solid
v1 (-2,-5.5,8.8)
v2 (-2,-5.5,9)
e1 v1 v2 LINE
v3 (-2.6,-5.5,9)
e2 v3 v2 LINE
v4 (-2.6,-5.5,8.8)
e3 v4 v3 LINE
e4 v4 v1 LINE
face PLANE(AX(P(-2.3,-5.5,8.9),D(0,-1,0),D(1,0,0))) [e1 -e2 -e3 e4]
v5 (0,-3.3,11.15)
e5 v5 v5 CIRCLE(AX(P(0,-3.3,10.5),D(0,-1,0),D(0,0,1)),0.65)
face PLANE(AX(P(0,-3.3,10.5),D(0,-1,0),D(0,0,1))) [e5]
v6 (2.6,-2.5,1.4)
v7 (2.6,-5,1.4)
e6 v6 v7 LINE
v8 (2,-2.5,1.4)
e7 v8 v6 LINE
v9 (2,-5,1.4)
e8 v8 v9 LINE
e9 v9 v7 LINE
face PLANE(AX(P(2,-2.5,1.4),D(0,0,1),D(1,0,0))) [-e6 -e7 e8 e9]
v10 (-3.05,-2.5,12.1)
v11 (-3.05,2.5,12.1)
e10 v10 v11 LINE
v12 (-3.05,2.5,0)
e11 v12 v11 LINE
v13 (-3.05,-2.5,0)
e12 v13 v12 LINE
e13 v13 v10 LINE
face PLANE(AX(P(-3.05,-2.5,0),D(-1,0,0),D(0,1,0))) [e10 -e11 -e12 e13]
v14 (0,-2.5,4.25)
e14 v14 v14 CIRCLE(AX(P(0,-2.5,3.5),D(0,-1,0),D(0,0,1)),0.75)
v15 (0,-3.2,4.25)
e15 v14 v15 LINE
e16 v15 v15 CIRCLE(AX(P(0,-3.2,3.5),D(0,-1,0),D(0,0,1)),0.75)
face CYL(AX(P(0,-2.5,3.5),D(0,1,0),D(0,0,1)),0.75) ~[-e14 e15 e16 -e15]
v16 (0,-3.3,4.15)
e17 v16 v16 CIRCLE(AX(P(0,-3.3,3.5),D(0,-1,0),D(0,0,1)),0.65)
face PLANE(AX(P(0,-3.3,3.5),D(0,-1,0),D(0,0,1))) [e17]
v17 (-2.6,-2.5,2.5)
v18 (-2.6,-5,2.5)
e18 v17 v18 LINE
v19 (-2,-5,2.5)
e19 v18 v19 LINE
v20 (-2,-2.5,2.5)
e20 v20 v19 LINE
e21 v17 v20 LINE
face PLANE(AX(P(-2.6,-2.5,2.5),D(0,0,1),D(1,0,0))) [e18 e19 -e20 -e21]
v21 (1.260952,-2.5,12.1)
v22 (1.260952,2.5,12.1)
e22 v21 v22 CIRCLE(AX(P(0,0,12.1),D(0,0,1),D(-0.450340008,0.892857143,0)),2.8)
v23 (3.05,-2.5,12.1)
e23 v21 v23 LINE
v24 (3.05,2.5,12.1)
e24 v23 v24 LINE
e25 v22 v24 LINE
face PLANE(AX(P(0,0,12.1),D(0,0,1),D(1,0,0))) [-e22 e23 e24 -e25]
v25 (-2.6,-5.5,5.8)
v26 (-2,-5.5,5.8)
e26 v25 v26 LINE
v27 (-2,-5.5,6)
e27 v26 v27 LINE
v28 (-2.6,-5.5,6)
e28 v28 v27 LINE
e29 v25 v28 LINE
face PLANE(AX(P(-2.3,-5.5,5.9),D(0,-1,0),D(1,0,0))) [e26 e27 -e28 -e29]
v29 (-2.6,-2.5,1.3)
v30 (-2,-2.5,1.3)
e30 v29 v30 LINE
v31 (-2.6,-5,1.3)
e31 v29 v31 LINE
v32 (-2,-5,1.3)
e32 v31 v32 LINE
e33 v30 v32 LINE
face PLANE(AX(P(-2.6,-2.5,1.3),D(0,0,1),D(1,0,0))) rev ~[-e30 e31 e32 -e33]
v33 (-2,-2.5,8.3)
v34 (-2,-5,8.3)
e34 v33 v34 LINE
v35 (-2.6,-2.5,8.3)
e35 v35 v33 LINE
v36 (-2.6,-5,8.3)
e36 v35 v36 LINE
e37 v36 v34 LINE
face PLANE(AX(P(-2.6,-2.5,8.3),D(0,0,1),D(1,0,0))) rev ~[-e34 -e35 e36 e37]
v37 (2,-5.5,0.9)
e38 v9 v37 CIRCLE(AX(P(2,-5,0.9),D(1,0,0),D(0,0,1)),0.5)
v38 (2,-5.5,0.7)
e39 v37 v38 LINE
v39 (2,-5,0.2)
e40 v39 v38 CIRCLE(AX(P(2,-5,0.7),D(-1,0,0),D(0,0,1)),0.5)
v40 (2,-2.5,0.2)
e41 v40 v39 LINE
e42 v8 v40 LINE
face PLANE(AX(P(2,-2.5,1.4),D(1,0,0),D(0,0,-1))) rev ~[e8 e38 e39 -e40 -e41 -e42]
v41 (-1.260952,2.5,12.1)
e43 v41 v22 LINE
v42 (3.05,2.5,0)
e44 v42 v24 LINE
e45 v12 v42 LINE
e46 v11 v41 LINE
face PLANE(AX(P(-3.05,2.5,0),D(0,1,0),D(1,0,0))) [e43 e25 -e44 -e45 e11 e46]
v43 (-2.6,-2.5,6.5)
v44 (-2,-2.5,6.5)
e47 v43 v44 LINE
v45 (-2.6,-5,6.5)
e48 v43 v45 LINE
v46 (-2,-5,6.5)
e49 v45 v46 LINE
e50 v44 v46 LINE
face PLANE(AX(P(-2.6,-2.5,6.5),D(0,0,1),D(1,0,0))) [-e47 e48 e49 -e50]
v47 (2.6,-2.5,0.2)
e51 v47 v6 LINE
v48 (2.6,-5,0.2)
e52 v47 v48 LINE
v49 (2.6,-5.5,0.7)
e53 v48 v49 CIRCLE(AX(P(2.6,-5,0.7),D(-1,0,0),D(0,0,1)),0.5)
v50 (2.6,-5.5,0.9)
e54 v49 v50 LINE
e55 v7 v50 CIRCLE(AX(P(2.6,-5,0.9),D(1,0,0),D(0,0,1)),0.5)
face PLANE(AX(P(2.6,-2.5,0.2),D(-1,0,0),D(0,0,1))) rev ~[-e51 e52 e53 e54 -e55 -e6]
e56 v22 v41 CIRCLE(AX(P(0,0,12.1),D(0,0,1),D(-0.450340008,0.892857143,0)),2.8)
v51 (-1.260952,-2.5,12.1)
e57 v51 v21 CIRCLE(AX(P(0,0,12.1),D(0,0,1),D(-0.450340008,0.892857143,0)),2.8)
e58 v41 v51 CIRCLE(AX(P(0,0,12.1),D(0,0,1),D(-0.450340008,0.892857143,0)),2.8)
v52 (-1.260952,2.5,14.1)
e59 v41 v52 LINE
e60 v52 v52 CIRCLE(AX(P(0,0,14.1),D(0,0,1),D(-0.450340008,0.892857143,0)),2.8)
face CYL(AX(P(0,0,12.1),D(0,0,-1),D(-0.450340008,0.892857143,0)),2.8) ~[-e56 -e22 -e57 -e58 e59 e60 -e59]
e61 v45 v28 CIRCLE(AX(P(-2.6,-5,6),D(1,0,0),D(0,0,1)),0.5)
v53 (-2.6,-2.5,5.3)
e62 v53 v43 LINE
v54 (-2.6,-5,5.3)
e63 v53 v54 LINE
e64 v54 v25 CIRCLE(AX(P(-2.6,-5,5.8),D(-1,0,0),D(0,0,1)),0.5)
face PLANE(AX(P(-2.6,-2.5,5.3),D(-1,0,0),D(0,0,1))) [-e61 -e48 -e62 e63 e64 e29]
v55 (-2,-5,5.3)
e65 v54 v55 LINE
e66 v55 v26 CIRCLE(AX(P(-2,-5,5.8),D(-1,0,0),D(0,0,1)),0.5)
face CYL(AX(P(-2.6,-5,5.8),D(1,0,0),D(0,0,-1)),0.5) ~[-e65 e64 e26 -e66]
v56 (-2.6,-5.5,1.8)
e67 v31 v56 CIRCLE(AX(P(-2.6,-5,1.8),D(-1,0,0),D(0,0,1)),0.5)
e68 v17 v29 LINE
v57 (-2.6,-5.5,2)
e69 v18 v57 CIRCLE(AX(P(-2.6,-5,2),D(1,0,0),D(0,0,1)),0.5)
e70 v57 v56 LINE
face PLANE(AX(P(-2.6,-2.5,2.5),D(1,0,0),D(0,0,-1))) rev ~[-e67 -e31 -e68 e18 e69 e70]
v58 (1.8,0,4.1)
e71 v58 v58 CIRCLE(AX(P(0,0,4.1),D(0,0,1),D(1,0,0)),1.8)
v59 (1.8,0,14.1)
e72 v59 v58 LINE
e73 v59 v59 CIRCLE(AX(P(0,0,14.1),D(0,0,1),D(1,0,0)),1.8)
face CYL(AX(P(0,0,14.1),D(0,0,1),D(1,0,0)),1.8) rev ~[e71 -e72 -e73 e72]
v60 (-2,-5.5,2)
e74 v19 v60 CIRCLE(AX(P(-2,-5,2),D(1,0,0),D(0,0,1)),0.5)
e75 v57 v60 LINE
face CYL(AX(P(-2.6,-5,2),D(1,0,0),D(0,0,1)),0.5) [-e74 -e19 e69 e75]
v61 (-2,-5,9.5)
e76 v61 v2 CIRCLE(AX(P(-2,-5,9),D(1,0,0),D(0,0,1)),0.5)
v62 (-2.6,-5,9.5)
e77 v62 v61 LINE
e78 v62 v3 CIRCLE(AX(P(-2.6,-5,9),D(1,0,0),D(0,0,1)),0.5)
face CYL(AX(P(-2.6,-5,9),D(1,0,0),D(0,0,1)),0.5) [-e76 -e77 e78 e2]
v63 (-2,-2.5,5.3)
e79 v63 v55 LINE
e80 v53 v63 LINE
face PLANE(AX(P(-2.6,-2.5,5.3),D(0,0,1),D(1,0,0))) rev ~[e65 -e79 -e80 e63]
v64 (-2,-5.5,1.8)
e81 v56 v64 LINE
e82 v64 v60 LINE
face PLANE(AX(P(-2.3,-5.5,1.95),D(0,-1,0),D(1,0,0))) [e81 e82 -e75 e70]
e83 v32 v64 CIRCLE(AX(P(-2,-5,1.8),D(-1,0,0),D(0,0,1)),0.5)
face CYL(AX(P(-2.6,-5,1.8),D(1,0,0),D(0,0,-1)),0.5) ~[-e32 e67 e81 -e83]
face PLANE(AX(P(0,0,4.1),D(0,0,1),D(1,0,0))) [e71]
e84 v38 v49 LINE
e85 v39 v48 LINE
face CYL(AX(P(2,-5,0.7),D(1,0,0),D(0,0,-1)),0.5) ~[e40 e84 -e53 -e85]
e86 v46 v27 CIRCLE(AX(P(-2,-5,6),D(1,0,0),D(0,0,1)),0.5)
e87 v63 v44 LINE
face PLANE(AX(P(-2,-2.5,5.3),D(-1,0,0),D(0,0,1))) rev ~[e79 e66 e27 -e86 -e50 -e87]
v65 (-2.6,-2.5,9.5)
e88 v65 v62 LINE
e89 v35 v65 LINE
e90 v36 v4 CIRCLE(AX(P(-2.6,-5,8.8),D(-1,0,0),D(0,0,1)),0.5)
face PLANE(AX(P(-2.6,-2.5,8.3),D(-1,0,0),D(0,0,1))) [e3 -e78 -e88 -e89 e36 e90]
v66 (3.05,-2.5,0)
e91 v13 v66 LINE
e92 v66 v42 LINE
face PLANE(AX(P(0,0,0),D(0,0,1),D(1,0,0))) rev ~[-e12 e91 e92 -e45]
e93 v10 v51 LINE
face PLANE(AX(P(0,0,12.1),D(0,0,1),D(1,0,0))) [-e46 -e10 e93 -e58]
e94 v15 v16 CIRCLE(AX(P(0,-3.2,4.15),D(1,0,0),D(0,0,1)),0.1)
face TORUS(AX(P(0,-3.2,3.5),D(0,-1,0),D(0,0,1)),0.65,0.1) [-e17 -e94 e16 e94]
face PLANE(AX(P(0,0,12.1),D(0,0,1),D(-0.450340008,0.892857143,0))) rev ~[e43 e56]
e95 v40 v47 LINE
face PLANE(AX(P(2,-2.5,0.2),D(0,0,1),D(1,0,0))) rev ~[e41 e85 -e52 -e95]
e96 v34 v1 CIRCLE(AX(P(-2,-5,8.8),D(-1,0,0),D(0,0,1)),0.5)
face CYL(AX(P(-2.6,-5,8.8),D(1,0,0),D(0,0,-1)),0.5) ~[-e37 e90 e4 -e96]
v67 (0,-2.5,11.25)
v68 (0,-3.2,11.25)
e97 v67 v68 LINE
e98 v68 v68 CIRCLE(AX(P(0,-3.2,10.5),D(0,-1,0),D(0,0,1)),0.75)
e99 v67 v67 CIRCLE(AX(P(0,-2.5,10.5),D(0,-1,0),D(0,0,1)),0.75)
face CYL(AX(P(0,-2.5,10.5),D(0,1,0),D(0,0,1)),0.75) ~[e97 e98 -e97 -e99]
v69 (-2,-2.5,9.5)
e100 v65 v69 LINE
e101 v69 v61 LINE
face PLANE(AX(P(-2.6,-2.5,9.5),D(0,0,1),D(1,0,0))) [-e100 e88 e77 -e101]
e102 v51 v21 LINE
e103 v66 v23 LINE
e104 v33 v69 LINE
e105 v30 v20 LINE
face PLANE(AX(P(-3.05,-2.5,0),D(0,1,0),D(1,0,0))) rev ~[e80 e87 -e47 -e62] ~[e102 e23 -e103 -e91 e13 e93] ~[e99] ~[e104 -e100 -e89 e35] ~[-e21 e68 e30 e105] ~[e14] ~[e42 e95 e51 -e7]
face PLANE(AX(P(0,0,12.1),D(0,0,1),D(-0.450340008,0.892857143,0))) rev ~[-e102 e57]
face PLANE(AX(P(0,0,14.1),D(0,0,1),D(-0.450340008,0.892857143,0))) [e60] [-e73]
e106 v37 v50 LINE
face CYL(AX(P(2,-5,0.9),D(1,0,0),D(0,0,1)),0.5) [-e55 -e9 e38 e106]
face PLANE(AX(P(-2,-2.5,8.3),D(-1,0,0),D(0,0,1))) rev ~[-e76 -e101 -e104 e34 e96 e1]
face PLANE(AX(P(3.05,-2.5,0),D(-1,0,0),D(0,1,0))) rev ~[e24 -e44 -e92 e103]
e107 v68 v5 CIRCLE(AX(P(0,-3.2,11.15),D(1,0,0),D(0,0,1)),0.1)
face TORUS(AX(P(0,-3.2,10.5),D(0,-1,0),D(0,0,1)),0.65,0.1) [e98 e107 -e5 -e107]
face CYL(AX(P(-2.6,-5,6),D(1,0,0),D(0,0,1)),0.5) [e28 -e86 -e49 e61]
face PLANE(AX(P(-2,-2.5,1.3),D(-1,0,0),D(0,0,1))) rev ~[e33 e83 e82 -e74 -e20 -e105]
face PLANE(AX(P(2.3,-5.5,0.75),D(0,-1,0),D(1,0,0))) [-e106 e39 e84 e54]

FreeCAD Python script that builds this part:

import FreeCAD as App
import Part
import Sketcher
from FreeCAD import Vector


def edges_at(feature, points):
    """Names of the edges that pass closest to the given points."""
    edges = feature.Shape.Edges
    near = lambda p: min(range(len(edges)), key=lambda i: edges[i].distToShape(Part.Vertex(*p))[0])
    return sorted({f"Edge{near(p) + 1}" for p in points})


def add_polygon(sketch, points):
    """Adds a closed chain of lines whose ends are joined by coincident constraints."""
    first, n = sketch.GeometryCount, len(points)
    for a, b in zip(points, points[1:] + points[:1]):
        sketch.addGeometry(Part.LineSegment(App.Vector(*a, 0), App.Vector(*b, 0)), False)
    for i in range(n):
        sketch.addConstraint(Sketcher.Constraint("Coincident", first + i, 2, first + (i + 1) % n, 1))

doc = App.newDocument("Part")
body = doc.addObject("PartDesign::Body", "Body")

sketch1 = body.newObject("Sketcher::SketchObject", "Sketch")
sketch1.AttachmentSupport = (doc.getObject("XY_Plane"), [""])
sketch1.MapMode = "FlatFace"
add_polygon(sketch1, [(-3, 2), (-3, -2), (3, -2), (3, 2)])
sketch1.addConstraint([
    Sketcher.Constraint("Vertical", 0),
    Sketcher.Constraint("Horizontal", 1),
    Sketcher.Constraint("Vertical", 2),
    Sketcher.Constraint("Horizontal", 3),
    Sketcher.Constraint("Symmetric", 0, 2, 2, 2, -1, 1),
    Sketcher.Constraint("DistanceY", 0, 2, 0, 1, 5.0),
    Sketcher.Constraint("DistanceX", 1, 1, 1, 2, 6.1),
])
pad1 = body.newObject("PartDesign::Pad", "Pad")
pad1.Profile = sketch1
pad1.Length = 12.1

sketch2 = body.newObject("Sketcher::SketchObject", "Sketch001")
sketch2.AttachmentSupport = (doc.getObject("XY_Plane"), [""])
sketch2.MapMode = "FlatFace"
sketch2.AttachmentOffset = App.Placement(Vector(0, 0, 12.1), App.Rotation())
sketch2.addGeometry(Part.Circle(Vector(0, 0, 0), Vector(0, 0, 1), 2.8), False)
sketch2.addConstraint([
    Sketcher.Constraint("Coincident", 0, 3, -1, 1),
    Sketcher.Constraint("Diameter", 0, 5.6),
])
pad2 = body.newObject("PartDesign::Pad", "Pad001")
pad2.Profile = sketch2
pad2.Length = 2

sketch3 = body.newObject("Sketcher::SketchObject", "Sketch002")
sketch3.AttachmentSupport = (doc.getObject("XY_Plane"), [""])
sketch3.MapMode = "FlatFace"
sketch3.AttachmentOffset = App.Placement(Vector(0, 0, 14.1), App.Rotation())
sketch3.addGeometry(Part.Circle(Vector(0, 0, 0), Vector(0, 0, 1), 1.8), False)
sketch3.addConstraint([
    Sketcher.Constraint("Coincident", 0, 3, -1, 1),
    Sketcher.Constraint("Diameter", 0, 3.6),
])
pocket1 = body.newObject("PartDesign::Pocket", "Pocket")
pocket1.Profile = sketch3
pocket1.Length = 10

sketch4 = body.newObject("Sketcher::SketchObject", "Sketch003")
sketch4.AttachmentSupport = (doc.getObject("XZ_Plane"), [""])
sketch4.MapMode = "FlatFace"
sketch4.AttachmentOffset = App.Placement(Vector(0, 0, 2.5), App.Rotation())
sketch4.addGeometry([
    Part.Circle(Vector(0, 10.5, 0), Vector(0, 0, 1), 0.8),
    Part.Circle(Vector(0, 3.5, 0), Vector(0, 0, 1), 0.8),
], False)
sketch4.addConstraint([
    Sketcher.Constraint("Equal", 0, 1),
    Sketcher.Constraint("PointOnObject", 0, 3, -2),
    Sketcher.Constraint("PointOnObject", 1, 3, -2),
    Sketcher.Constraint("Diameter", 0, 1.5),
    Sketcher.Constraint("DistanceY", 1, 3, 0, 3, 7.0),
    Sketcher.Constraint("DistanceY", -1, 1, 0, 3, 10.5),
])
pad3 = body.newObject("PartDesign::Pad", "Pad002")
pad3.Profile = sketch4
pad3.Length = 0.8

sketch5 = body.newObject("Sketcher::SketchObject", "Sketch004")
sketch5.AttachmentSupport = (doc.getObject("XZ_Plane"), [""])
sketch5.MapMode = "FlatFace"
sketch5.AttachmentOffset = App.Placement(Vector(0, 0, 2.5), App.Rotation())
add_polygon(sketch5, [(-2.6, 2.5), (-2.6, 1.3), (-2, 1.3), (-2, 2.5)])
add_polygon(sketch5, [(-2.6, 6.5), (-2.6, 5.3), (-2, 5.3), (-2, 6.5)])
add_polygon(sketch5, [(2, 0.2), (2.6, 0.2), (2.6, 1.4), (2, 1.4)])
add_polygon(sketch5, [(-2.6, 9.5), (-2.6, 8.3), (-2, 8.3), (-2, 9.5)])
sketch5.addConstraint([
    Sketcher.Constraint("Vertical", 0),
    Sketcher.Constraint("Horizontal", 1),
    Sketcher.Constraint("Vertical", 2),
    Sketcher.Constraint("Horizontal", 3),
    Sketcher.Constraint("Vertical", 4),
    Sketcher.Constraint("Horizontal", 5),
    Sketcher.Constraint("Vertical", 6),
    Sketcher.Constraint("Horizontal", 7),
    Sketcher.Constraint("Horizontal", 8),
    Sketcher.Constraint("Vertical", 9),
    Sketcher.Constraint("Horizontal", 10),
    Sketcher.Constraint("Vertical", 11),
    Sketcher.Constraint("Vertical", 12),
    Sketcher.Constraint("Horizontal", 13),
    Sketcher.Constraint("Vertical", 14),
    Sketcher.Constraint("Horizontal", 15),
    Sketcher.Constraint("Vertical", 3, 2, 4, 2),
    Sketcher.Constraint("Vertical", 2, 2, 5, 2),
    Sketcher.Constraint("Vertical", 7, 2, 12, 2),
    Sketcher.Constraint("Vertical", 6, 2, 13, 2),
    Sketcher.Constraint("Equal", 7, 8),
    Sketcher.Constraint("Equal", 2, 4),
    Sketcher.Constraint("Equal", 6, 9),
    Sketcher.Constraint("Equal", 11, 12),
    Sketcher.Constraint("DistanceX", 1, 1, 1, 2, 0.6),
    Sketcher.Constraint("DistanceY", 0, 2, 0, 1, 1.2),
    Sketcher.Constraint("DistanceX", 1, 2, -1, 1, 2.0),
    Sketcher.Constraint("DistanceX", -1, 1, 10, 2, 2.0),
    Sketcher.Constraint("DistanceY", 0, 2, 4, 2, 4.0),
    Sketcher.Constraint("DistanceY", 4, 2, 12, 2, 3.0),
    Sketcher.Constraint("DistanceY", -1, 1, 0, 2, 1.3),
    Sketcher.Constraint("DistanceY", -1, 1, 8, 2, 0.2),
])
pad4 = body.newObject("PartDesign::Pad", "Pad003")
pad4.Profile = sketch5
pad4.Length = 3
doc.recompute()

fillet = body.newObject("PartDesign::Fillet", "Fillet")
fillet.Base = (pad4, edges_at(pad4, [
    (-2.3, -5.5, 1.3),
    (-2.3, -5.5, 2.5),
    (-2.3, -5.5, 5.3),
    (-2.3, -5.5, 6.5),
    (2.3, -5.5, 0.2),
    (2.3, -5.5, 1.4),
    (-2.3, -5.5, 8.3),
    (-2.3, -5.5, 9.5),
]))
fillet.Radius = 0.5
doc.recompute()

fillet2 = body.newObject("PartDesign::Fillet", "Fillet001")
fillet2.Base = (fillet, edges_at(fillet, [(0, -3.3, 9.75), (0, -3.3, 2.75)]))
fillet2.Radius = 0.1

doc.recompute()
